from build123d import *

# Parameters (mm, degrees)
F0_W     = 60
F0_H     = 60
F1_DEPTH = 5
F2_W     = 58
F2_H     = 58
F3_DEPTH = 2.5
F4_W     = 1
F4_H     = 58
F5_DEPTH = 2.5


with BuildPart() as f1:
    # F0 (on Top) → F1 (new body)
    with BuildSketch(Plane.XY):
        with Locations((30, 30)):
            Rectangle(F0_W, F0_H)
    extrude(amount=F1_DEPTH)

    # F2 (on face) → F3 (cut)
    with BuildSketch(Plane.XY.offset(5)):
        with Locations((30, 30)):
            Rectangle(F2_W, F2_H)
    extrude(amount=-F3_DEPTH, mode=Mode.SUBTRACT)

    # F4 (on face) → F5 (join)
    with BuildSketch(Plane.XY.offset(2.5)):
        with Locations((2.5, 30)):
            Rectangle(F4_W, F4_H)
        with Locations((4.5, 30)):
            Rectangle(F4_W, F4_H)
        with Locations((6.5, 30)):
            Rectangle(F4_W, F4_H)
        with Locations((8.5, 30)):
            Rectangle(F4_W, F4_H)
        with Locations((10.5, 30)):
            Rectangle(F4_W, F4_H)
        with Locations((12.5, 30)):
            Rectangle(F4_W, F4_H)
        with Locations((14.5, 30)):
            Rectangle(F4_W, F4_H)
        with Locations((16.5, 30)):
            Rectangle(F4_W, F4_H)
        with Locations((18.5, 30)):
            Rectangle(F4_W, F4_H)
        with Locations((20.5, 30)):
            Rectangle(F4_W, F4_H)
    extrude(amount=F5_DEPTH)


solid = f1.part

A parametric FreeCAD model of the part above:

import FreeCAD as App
import Part
import Sketcher

doc = App.newDocument("Part")
body = doc.addObject("PartDesign::Body", "Body")

# Sketch on XY plane
sketch1 = doc.addObject("Sketcher::SketchObject", "Sketch")
body.addObject(sketch1)
sketch1.AttachmentSupport = (doc.XY_Plane, [""])
sketch1.MapMode = "FlatFace"
sketch1.addGeometry([
    Part.LineSegment(App.Vector(0, 60, 0), App.Vector(0, 0, 0)),
    Part.LineSegment(App.Vector(0, 0, 0), App.Vector(60, 0, 0)),
    Part.LineSegment(App.Vector(60, 0, 0), App.Vector(60, 60, 0)),
    Part.LineSegment(App.Vector(60, 60, 0), App.Vector(0, 60, 0)),
], False)
sketch1.addConstraint([
    Sketcher.Constraint("Coincident", 0, 2, 1, 1),
    Sketcher.Constraint("Coincident", 1, 2, 2, 1),
    Sketcher.Constraint("Coincident", 2, 2, 3, 1),
    Sketcher.Constraint("Coincident", 3, 2, 0, 1),
    Sketcher.Constraint("Vertical", 0),
    Sketcher.Constraint("Horizontal", 1),
    Sketcher.Constraint("Vertical", 2),
    Sketcher.Constraint("Horizontal", 3),
    Sketcher.Constraint("Coincident", 0, 2, -1, 1),
    Sketcher.Constraint("Equal", 3, 0),
    Sketcher.Constraint("DistanceX", 1, 1, 1, 2, 60.0),
])
pad1 = doc.addObject("PartDesign::Pad", "Pad")
body.addObject(pad1)
pad1.Profile = sketch1
pad1.Length = 5

# Sketch on XY plane
sketch2 = doc.addObject("Sketcher::SketchObject", "Sketch001")
body.addObject(sketch2)
sketch2.AttachmentSupport = (doc.XY_Plane, [""])
sketch2.MapMode = "FlatFace"
sketch2.AttachmentOffset = App.Placement(App.Vector(0, 0, 5), App.Rotation())
sketch2.addGeometry([
    Part.LineSegment(App.Vector(1, 59, 0), App.Vector(1, 1, 0)),
    Part.LineSegment(App.Vector(1, 1, 0), App.Vector(59, 1, 0)),
    Part.LineSegment(App.Vector(59, 1, 0), App.Vector(59, 59, 0)),
    Part.LineSegment(App.Vector(59, 59, 0), App.Vector(1, 59, 0)),
], False)
sketch2.addConstraint([
    Sketcher.Constraint("Coincident", 0, 2, 1, 1),
    Sketcher.Constraint("Coincident", 1, 2, 2, 1),
    Sketcher.Constraint("Coincident", 2, 2, 3, 1),
    Sketcher.Constraint("Coincident", 3, 2, 0, 1),
    Sketcher.Constraint("Vertical", 0),
    Sketcher.Constraint("Horizontal", 1),
    Sketcher.Constraint("Vertical", 2),
    Sketcher.Constraint("Horizontal", 3),
    Sketcher.Constraint("Equal", 3, 0),
    Sketcher.Constraint("DistanceX", 1, 1, 1, 2, 58.0),
    Sketcher.Constraint("DistanceX", -1, 1, 0, 2, 1.0),
    Sketcher.Constraint("DistanceY", -1, 1, 0, 2, 1.0),
])
pocket1 = doc.addObject("PartDesign::Pocket", "Pocket")
body.addObject(pocket1)
pocket1.Profile = sketch2
pocket1.Length = 2.5

# Sketch on XY plane
sketch3 = doc.addObject("Sketcher::SketchObject", "Sketch002")
body.addObject(sketch3)
sketch3.AttachmentSupport = (doc.XY_Plane, [""])
sketch3.MapMode = "FlatFace"
sketch3.AttachmentOffset = App.Placement(App.Vector(0, 0, 2.5), App.Rotation())
sketch3.addGeometry([
    Part.LineSegment(App.Vector(2, 59, 0), App.Vector(2, 1, 0)),  # 0
    Part.LineSegment(App.Vector(2, 1, 0), App.Vector(3, 1, 0)),  # 1
    Part.LineSegment(App.Vector(3, 1, 0), App.Vector(3, 59, 0)),  # 2
    Part.LineSegment(App.Vector(3, 59, 0), App.Vector(2, 59, 0)),  # 3
    Part.LineSegment(App.Vector(4, 59, 0), App.Vector(4, 1, 0)),  # 4
    Part.LineSegment(App.Vector(4, 1, 0), App.Vector(5, 1, 0)),  # 5
    Part.LineSegment(App.Vector(5, 1, 0), App.Vector(5, 59, 0)),  # 6
    Part.LineSegment(App.Vector(5, 59, 0), App.Vector(4, 59, 0)),  # 7
    Part.LineSegment(App.Vector(6, 59, 0), App.Vector(6, 1, 0)),  # 8
    Part.LineSegment(App.Vector(6, 1, 0), App.Vector(7, 1, 0)),  # 9
    Part.LineSegment(App.Vector(7, 1, 0), App.Vector(7, 59, 0)),  # 10
    Part.LineSegment(App.Vector(7, 59, 0), App.Vector(6, 59, 0)),  # 11
    Part.LineSegment(App.Vector(8, 59, 0), App.Vector(8, 1, 0)),  # 12
    Part.LineSegment(App.Vector(8, 1, 0), App.Vector(9, 1, 0)),  # 13
    Part.LineSegment(App.Vector(9, 1, 0), App.Vector(9, 59, 0)),  # 14
    Part.LineSegment(App.Vector(9, 59, 0), App.Vector(8, 59, 0)),  # 15
    Part.LineSegment(App.Vector(10, 59, 0), App.Vector(10, 1, 0)),  # 16
    Part.LineSegment(App.Vector(10, 1, 0), App.Vector(11, 1, 0)),  # 17
    Part.LineSegment(App.Vector(11, 1, 0), App.Vector(11, 59, 0)),  # 18
    Part.LineSegment(App.Vector(11, 59, 0), App.Vector(10, 59, 0)),  # 19
    Part.LineSegment(App.Vector(12, 59, 0), App.Vector(12, 1, 0)),  # 20
    Part.LineSegment(App.Vector(12, 1, 0), App.Vector(13, 1, 0)),  # 21
    Part.LineSegment(App.Vector(13, 1, 0), App.Vector(13, 59, 0)),  # 22
    Part.LineSegment(App.Vector(13, 59, 0), App.Vector(12, 59, 0)),  # 23
    Part.LineSegment(App.Vector(14, 59, 0), App.Vector(14, 1, 0)),  # 24
    Part.LineSegment(App.Vector(14, 1, 0), App.Vector(15, 1, 0)),  # 25
    Part.LineSegment(App.Vector(15, 1, 0), App.Vector(15, 59, 0)),  # 26
    Part.LineSegment(App.Vector(15, 59, 0), App.Vector(14, 59, 0)),  # 27
    Part.LineSegment(App.Vector(16, 59, 0), App.Vector(16, 1, 0)),  # 28
    Part.LineSegment(App.Vector(16, 1, 0), App.Vector(17, 1, 0)),  # 29
    Part.LineSegment(App.Vector(17, 1, 0), App.Vector(17, 59, 0)),  # 30
    Part.LineSegment(App.Vector(17, 59, 0), App.Vector(16, 59, 0)),  # 31
    Part.LineSegment(App.Vector(18, 59, 0), App.Vector(18, 1, 0)),  # 32
    Part.LineSegment(App.Vector(18, 1, 0), App.Vector(19, 1, 0)),  # 33
    Part.LineSegment(App.Vector(19, 1, 0), App.Vector(19, 59, 0)),  # 34
    Part.LineSegment(App.Vector(19, 59, 0), App.Vector(18, 59, 0)),  # 35
    Part.LineSegment(App.Vector(20, 59, 0), App.Vector(20, 1, 0)),  # 36
    Part.LineSegment(App.Vector(20, 1, 0), App.Vector(21, 1, 0)),  # 37
    Part.LineSegment(App.Vector(21, 1, 0), App.Vector(21, 59, 0)),  # 38
    Part.LineSegment(App.Vector(21, 59, 0), App.Vector(20, 59, 0)),  # 39
], False)
sketch3.addConstraint([
    Sketcher.Constraint("Coincident", 0, 2, 1, 1),
    Sketcher.Constraint("Coincident", 1, 2, 2, 1),
    Sketcher.Constraint("Coincident", 2, 2, 3, 1),
    Sketcher.Constraint("Coincident", 3, 2, 0, 1),
    Sketcher.Constraint("Coincident", 4, 2, 5, 1),
    Sketcher.Constraint("Coincident", 5, 2, 6, 1),
    Sketcher.Constraint("Coincident", 6, 2, 7, 1),
    Sketcher.Constraint("Coincident", 7, 2, 4, 1),
    Sketcher.Constraint("Coincident", 8, 2, 9, 1),
    Sketcher.Constraint("Coincident", 9, 2, 10, 1),
    Sketcher.Constraint("Coincident", 10, 2, 11, 1),
    Sketcher.Constraint("Coincident", 11, 2, 8, 1),
    Sketcher.Constraint("Coincident", 12, 2, 13, 1),
    Sketcher.Constraint("Coincident", 13, 2, 14, 1),
    Sketcher.Constraint("Coincident", 14, 2, 15, 1),
    Sketcher.Constraint("Coincident", 15, 2, 12, 1),
    Sketcher.Constraint("Coincident", 16, 2, 17, 1),
    Sketcher.Constraint("Coincident", 17, 2, 18, 1),
    Sketcher.Constraint("Coincident", 18, 2, 19, 1),
    Sketcher.Constraint("Coincident", 19, 2, 16, 1),
    Sketcher.Constraint("Coincident", 20, 2, 21, 1),
    Sketcher.Constraint("Coincident", 21, 2, 22, 1),
    Sketcher.Constraint("Coincident", 22, 2, 23, 1),
    Sketcher.Constraint("Coincident", 23, 2, 20, 1),
    Sketcher.Constraint("Coincident", 24, 2, 25, 1),
    Sketcher.Constraint("Coincident", 25, 2, 26, 1),
    Sketcher.Constraint("Coincident", 26, 2, 27, 1),
    Sketcher.Constraint("Coincident", 27, 2, 24, 1),
    Sketcher.Constraint("Coincident", 28, 2, 29, 1),
    Sketcher.Constraint("Coincident", 29, 2, 30, 1),
    Sketcher.Constraint("Coincident", 30, 2, 31, 1),
    Sketcher.Constraint("Coincident", 31, 2, 28, 1),
    Sketcher.Constraint("Coincident", 32, 2, 33, 1),
    Sketcher.Constraint("Coincident", 33, 2, 34, 1),
    Sketcher.Constraint("Coincident", 34, 2, 35, 1),
    Sketcher.Constraint("Coincident", 35, 2, 32, 1),
    Sketcher.Constraint("Coincident", 36, 2, 37, 1),
    Sketcher.Constraint("Coincident", 37, 2, 38, 1),
    Sketcher.Constraint("Coincident", 38, 2, 39, 1),
    Sketcher.Constraint("Coincident", 39, 2, 36, 1),
    Sketcher.Constraint("Vertical", 0),
    Sketcher.Constraint("Horizontal", 1),
    Sketcher.Constraint("Vertical", 2),
    Sketcher.Constraint("Horizontal", 3),
    Sketcher.Constraint("Vertical", 4),
    Sketcher.Constraint("Horizontal", 5),
    Sketcher.Constraint("Vertical", 6),
    Sketcher.Constraint("Horizontal", 7),
    Sketcher.Constraint("Vertical", 8),
    Sketcher.Constraint("Horizontal", 9),
    Sketcher.Constraint("Vertical", 10),
    Sketcher.Constraint("Horizontal", 11),
    Sketcher.Constraint("Vertical", 12),
    Sketcher.Constraint("Horizontal", 13),
    Sketcher.Constraint("Vertical", 14),
    Sketcher.Constraint("Horizontal", 15),
    Sketcher.Constraint("Vertical", 16),
    Sketcher.Constraint("Horizontal", 17),
    Sketcher.Constraint("Vertical", 18),
    Sketcher.Constraint("Horizontal", 19),
    Sketcher.Constraint("Vertical", 20),
    Sketcher.Constraint("Horizontal", 21),
    Sketcher.Constraint("Vertical", 22),
    Sketcher.Constraint("Horizontal", 23),
    Sketcher.Constraint("Vertical", 24),
    Sketcher.Constraint("Horizontal", 25),
    Sketcher.Constraint("Vertical", 26),
    Sketcher.Constraint("Horizontal", 27),
    Sketcher.Constraint("Vertical", 28),
    Sketcher.Constraint("Horizontal", 29),
    Sketcher.Constraint("Vertical", 30),
    Sketcher.Constraint("Horizontal", 31),
    Sketcher.Constraint("Vertical", 32),
    Sketcher.Constraint("Horizontal", 33),
    Sketcher.Constraint("Vertical", 34),
    Sketcher.Constraint("Horizontal", 35),
    Sketcher.Constraint("Vertical", 36),
    Sketcher.Constraint("Horizontal", 37),
    Sketcher.Constraint("Vertical", 38),
    Sketcher.Constraint("Horizontal", 39),
    Sketcher.Constraint("Horizontal", 1, 2, 4, 2),
    Sketcher.Constraint("Horizontal", 3, 2, 6, 2),
    Sketcher.Constraint("Horizontal", 5, 2, 8, 2),
    Sketcher.Constraint("Horizontal", 7, 2, 10, 2),
    Sketcher.Constraint("Horizontal", 9, 2, 12, 2),
    Sketcher.Constraint("Horizontal", 11, 2, 14, 2),
    Sketcher.Constraint("Horizontal", 13, 2, 16, 2),
    Sketcher.Constraint("Horizontal", 15, 2, 18, 2),
    Sketcher.Constraint("Horizontal", 17, 2, 20, 2),
    Sketcher.Constraint("Horizontal", 19, 2, 22, 2),
    Sketcher.Constraint("Horizontal", 21, 2, 24, 2),
    Sketcher.Constraint("Horizontal", 23, 2, 26, 2),
    Sketcher.Constraint("Horizontal", 25, 2, 28, 2),
    Sketcher.Constraint("Horizontal", 27, 2, 30, 2),
    Sketcher.Constraint("Horizontal", 29, 2, 32, 2),
    Sketcher.Constraint("Horizontal", 31, 2, 34, 2),
    Sketcher.Constraint("Horizontal", 33, 2, 36, 2),
    Sketcher.Constraint("Horizontal", 35, 2, 38, 2),
    Sketcher.Constraint("Equal", 3, 5),
    Sketcher.Constraint("Equal", 7, 9),
    Sketcher.Constraint("Equal", 11, 13),
    Sketcher.Constraint("Equal", 15, 17),
    Sketcher.Constraint("Equal", 19, 21),
    Sketcher.Constraint("Equal", 23, 25),
    Sketcher.Constraint("Equal", 27, 29),
    Sketcher.Constraint("Equal", 31, 33),
    Sketcher.Constraint("Equal", 35, 37),
    Sketcher.Constraint("DistanceX", 1, 1, 1, 2, 1.0),
    Sketcher.Constraint("DistanceY", 0, 2, 0, 1, 58.0),
    Sketcher.Constraint("DistanceX", -1, 1, 0, 2, 2.0),
    Sketcher.Constraint("DistanceY", -1, 1, 0, 2, 1.0),
    Sketcher.Constraint("DistanceX", -1, 1, 4, 2, 4.0),
    Sketcher.Constraint("DistanceX", -1, 1, 8, 2, 6.0),
    Sketcher.Constraint("DistanceX", -1, 1, 12, 2, 8.0),
    Sketcher.Constraint("DistanceX", -1, 1, 16, 2, 10.0),
    Sketcher.Constraint("DistanceX", -1, 1, 20, 2, 12.0),
    Sketcher.Constraint("DistanceX", -1, 1, 24, 2, 14.0),
    Sketcher.Constraint("DistanceX", -1, 1, 28, 2, 16.0),
    Sketcher.Constraint("DistanceX", -1, 1, 32, 2, 18.0),
    Sketcher.Constraint("DistanceX", -1, 1, 36, 2, 20.0),
])
pad2 = doc.addObject("PartDesign::Pad", "Pad001")
body.addObject(pad2)
pad2.Profile = sketch3
pad2.Length = 2.5

doc.recompute()
